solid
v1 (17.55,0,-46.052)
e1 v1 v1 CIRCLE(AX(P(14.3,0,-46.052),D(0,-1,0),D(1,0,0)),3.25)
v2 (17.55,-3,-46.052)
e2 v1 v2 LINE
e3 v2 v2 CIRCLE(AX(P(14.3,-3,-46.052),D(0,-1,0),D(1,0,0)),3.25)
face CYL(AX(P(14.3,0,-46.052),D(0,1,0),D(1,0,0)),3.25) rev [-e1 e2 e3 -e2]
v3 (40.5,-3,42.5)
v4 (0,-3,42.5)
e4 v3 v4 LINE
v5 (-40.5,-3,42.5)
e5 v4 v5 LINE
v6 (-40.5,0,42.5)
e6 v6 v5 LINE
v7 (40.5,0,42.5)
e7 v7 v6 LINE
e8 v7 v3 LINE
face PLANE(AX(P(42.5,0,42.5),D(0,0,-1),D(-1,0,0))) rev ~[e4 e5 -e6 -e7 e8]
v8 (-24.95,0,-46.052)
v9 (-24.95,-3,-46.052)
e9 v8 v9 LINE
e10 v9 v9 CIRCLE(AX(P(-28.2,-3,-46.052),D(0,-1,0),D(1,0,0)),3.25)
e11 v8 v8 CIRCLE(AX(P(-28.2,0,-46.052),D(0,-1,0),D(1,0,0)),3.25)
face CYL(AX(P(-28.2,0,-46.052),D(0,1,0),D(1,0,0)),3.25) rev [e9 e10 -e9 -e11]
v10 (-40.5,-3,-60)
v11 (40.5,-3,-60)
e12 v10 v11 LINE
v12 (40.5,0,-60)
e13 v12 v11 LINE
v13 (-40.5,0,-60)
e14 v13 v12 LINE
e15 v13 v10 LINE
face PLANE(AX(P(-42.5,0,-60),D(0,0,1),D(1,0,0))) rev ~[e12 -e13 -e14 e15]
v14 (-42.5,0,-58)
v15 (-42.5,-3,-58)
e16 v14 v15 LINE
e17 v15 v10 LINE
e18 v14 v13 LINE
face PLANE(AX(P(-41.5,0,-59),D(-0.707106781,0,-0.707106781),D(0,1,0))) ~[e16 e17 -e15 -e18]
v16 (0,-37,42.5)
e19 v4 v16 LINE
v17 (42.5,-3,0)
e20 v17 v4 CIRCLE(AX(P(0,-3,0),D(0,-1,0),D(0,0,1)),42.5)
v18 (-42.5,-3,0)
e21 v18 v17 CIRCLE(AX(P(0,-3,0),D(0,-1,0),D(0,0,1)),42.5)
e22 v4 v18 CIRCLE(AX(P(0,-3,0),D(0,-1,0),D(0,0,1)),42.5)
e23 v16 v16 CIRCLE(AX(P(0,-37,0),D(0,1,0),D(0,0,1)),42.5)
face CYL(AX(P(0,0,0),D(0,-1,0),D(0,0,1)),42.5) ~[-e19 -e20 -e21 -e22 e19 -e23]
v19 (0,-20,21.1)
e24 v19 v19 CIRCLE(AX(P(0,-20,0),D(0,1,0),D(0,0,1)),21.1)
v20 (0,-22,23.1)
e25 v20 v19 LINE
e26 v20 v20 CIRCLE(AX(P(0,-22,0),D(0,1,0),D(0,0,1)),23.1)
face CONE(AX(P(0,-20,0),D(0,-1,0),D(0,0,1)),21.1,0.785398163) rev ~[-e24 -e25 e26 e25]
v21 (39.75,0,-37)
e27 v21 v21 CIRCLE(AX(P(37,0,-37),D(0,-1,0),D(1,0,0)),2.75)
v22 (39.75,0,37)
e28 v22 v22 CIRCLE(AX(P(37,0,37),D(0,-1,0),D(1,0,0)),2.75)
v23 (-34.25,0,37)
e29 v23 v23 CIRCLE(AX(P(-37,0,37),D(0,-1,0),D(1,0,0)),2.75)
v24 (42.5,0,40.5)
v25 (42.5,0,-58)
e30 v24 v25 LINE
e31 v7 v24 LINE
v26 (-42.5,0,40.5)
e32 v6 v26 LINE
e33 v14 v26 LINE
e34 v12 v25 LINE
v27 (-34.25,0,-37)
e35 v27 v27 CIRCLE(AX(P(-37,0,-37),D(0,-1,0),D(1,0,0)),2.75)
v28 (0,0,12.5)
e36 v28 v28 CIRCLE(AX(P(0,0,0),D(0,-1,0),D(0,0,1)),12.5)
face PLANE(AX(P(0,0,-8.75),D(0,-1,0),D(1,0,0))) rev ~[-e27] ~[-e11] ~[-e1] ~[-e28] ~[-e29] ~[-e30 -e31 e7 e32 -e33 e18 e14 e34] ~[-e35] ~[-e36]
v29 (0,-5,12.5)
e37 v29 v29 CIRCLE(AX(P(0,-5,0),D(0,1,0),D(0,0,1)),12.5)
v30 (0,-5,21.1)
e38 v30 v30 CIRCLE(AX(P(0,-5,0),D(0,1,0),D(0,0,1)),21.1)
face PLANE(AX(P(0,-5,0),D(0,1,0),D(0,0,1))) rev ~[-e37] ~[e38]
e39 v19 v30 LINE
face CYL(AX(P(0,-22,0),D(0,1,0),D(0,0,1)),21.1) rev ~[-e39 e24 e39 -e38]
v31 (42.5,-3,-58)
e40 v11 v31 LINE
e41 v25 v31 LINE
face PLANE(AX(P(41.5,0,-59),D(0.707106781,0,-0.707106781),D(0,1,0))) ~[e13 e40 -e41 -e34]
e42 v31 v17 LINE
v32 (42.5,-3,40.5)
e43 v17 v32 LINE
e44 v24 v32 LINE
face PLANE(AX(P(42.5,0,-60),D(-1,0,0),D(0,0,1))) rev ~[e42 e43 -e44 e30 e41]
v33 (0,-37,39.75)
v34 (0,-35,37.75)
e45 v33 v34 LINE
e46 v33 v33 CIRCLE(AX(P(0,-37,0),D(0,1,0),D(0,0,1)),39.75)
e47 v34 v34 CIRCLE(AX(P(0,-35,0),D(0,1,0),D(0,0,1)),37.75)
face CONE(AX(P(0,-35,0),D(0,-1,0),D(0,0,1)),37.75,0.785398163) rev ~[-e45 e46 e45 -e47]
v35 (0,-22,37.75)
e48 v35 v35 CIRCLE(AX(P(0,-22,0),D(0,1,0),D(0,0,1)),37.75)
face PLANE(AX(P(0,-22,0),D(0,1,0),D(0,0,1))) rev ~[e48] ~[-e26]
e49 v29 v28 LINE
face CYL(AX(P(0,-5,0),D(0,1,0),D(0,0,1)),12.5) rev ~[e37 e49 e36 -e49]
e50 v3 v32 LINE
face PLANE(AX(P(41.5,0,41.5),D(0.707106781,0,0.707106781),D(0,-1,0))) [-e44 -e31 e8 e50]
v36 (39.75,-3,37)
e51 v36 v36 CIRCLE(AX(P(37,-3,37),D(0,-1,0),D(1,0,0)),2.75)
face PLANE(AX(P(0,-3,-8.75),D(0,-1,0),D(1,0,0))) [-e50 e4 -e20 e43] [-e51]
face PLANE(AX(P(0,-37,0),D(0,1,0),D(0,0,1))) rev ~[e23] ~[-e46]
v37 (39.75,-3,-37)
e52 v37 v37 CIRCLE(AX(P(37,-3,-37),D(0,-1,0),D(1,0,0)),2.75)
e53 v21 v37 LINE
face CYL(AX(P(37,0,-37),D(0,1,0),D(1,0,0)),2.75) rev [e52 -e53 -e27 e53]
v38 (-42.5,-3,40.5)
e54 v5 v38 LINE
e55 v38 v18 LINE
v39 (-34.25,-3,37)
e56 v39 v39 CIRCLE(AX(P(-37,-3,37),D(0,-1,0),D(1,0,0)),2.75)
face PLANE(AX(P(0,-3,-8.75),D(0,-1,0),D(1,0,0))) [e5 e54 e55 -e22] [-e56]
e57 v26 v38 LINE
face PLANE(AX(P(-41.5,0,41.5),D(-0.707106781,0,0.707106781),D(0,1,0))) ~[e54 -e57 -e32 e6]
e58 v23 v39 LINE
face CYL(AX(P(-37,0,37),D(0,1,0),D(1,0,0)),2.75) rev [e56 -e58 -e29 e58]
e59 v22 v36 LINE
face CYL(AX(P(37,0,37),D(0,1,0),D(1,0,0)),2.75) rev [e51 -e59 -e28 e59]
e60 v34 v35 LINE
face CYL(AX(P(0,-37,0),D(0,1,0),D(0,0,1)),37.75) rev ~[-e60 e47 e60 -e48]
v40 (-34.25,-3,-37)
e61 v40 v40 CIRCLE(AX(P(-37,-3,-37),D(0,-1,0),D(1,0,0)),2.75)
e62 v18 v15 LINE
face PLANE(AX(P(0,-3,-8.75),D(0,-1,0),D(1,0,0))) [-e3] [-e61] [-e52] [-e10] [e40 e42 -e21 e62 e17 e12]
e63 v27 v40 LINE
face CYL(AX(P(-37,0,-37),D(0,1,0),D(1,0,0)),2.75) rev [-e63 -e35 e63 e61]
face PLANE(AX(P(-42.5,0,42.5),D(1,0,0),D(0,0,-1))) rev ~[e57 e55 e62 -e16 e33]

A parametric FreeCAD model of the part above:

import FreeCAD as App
import Part
import Sketcher
from FreeCAD import Vector
Q = App.Units.Quantity


def edges_at(feature, points):
    """Names of the edges that pass closest to the given points."""
    edges = feature.Shape.Edges
    near = lambda p: min(range(len(edges)), key=lambda i: edges[i].distToShape(Part.Vertex(*p))[0])
    return sorted({f"Edge{near(p) + 1}" for p in points})


def add_polygon(sketch, points):
    """Adds a closed chain of lines whose ends are joined by coincident constraints."""
    first, n = sketch.GeometryCount, len(points)
    for a, b in zip(points, points[1:] + points[:1]):
        sketch.addGeometry(Part.LineSegment(App.Vector(*a, 0), App.Vector(*b, 0)), False)
    for i in range(n):
        sketch.addConstraint(Sketcher.Constraint("Coincident", first + i, 2, first + (i + 1) % n, 1))

doc = App.newDocument("Part")
body = doc.addObject("PartDesign::Body", "Body")

# Sketch on YZ plane
sketch1 = body.newObject("Sketcher::SketchObject", "Sketch")
sketch1.AttachmentSupport = (doc.getObject("YZ_Plane"), [""])
sketch1.MapMode = "FlatFace"
add_polygon(sketch1, [(0, 12.5), (0, 42.5), (-37, 42.5), (-37, 37.8), (-22, 37.8), (-22, 21.1), (-5, 21.1), (-5, 12.5)])  # lines 0-7
sketch1.addConstraint([
    Sketcher.Constraint("Vertical", 0),
    Sketcher.Constraint("Horizontal", 1),
    Sketcher.Constraint("Vertical", 2),
    Sketcher.Constraint("Horizontal", 3),
    Sketcher.Constraint("Vertical", 4),
    Sketcher.Constraint("Horizontal", 5),
    Sketcher.Constraint("Vertical", 6),
    Sketcher.Constraint("Horizontal", 7),
    Sketcher.Constraint("PointOnObject", 0, 2, -2),
    Sketcher.Constraint("DistanceX", 1, 2, 1, 1, Q("37 mm")),
    Sketcher.Constraint("DistanceX", 3, 1, 3, 2, Q("15 mm")),
    Sketcher.Constraint("DistanceX", 5, 1, 5, 2, Q("17 mm")),
    Sketcher.Constraint("DistanceY", 0, 1, 0, 2, Q("30 mm")),
    Sketcher.Constraint("DistanceY", 6, 2, 6, 1, Q("8.6 mm")),
    Sketcher.Constraint("DistanceY", 2, 2, 2, 1, Q("4.75 mm")),
    Sketcher.Constraint("DistanceY", -1, 1, 0, 2, Q("42.5 mm")),
])
revolution = body.newObject("PartDesign::Revolution", "Revolution")
revolution.Profile = sketch1
revolution.ReferenceAxis = (sketch1, ["H_Axis"])
revolution.Angle = 360

# Sketch on XZ plane
sketch2 = body.newObject("Sketcher::SketchObject", "Sketch001")
sketch2.AttachmentSupport = (doc.getObject("XZ_Plane"), [""])
sketch2.MapMode = "FlatFace"
add_polygon(sketch2, [(42.5, 42.5), (-42.5, 42.5), (-42.5, -60), (42.5, -60)])  # lines 0-3
sketch2.addGeometry(Part.Circle(Vector(-28.2, -46.1, 0), Vector(0, 0, 1), 3.2), False)  # 4
sketch2.addGeometry(Part.Circle(Vector(-37, -37, 0), Vector(0, 0, 1), 2.8), False)  # 5
sketch2.addGeometry(Part.Circle(Vector(14.3, -46.1, 0), Vector(0, 0, 1), 3.2), False)  # 6
sketch2.addGeometry(Part.Circle(Vector(37, -37, 0), Vector(0, 0, 1), 2.8), False)  # 7
sketch2.addGeometry(Part.Circle(Vector(-37, 37, 0), Vector(0, 0, 1), 2.8), False)  # 8
sketch2.addGeometry(Part.Circle(Vector(0, 0, 0), Vector(0, 0, 1), 12.5), False)  # 9
sketch2.addGeometry(Part.Circle(Vector(37, 37, 0), Vector(0, 0, 1), 2.8), False)  # 10
sketch2.addConstraint([
    Sketcher.Constraint("Horizontal", 0),
    Sketcher.Constraint("Vertical", 1),
    Sketcher.Constraint("Horizontal", 2),
    Sketcher.Constraint("Vertical", 3),
    Sketcher.Constraint("Coincident", 9, 3, -1, 1),
    Sketcher.Constraint("Equal", 4, 6),
    Sketcher.Constraint("Equal", 5, 7),
    Sketcher.Constraint("Equal", 7, 8),
    Sketcher.Constraint("Equal", 8, 10),
    Sketcher.Constraint("Symmetric", 7, 3, 8, 3, -1, 1),
    Sketcher.Constraint("Symmetric", 5, 3, 10, 3, -1, 1),
    Sketcher.Constraint("Symmetric", 5, 3, 7, 3, -2),
    Sketcher.Constraint("Horizontal", 4, 3, 6, 3),
    Sketcher.Constraint("Diameter", 9, Q("25 mm")),
    Sketcher.Constraint("Diameter", 4, Q("6.5 mm")),
    Sketcher.Constraint("Diameter", 5, Q("5.5 mm")),
    Sketcher.Constraint("DistanceX", 0, 2, 0, 1, Q("85 mm")),
    Sketcher.Constraint("DistanceY", 1, 2, 1, 1, Q("102.5 mm")),
    Sketcher.Constraint("DistanceX", 5, 3, -1, 1, Q("37 mm")),
    Sketcher.Constraint("DistanceY", 5, 3, -1, 1, Q("37 mm")),
    Sketcher.Constraint("DistanceY", 1, 2, -1, 1, Q("60 mm")),
    Sketcher.Constraint("DistanceX", 4, 3, -1, 1, Q("28.2 mm")),
    Sketcher.Constraint("DistanceX", -1, 1, 6, 3, Q("14.3 mm")),
    Sketcher.Constraint("DistanceX", 0, 2, -1, 1, Q("42.5 mm")),
    Sketcher.Constraint("DistanceY", 4, 3, -1, 1, Q("46.052 mm")),
])
pad1 = body.newObject("PartDesign::Pad", "Pad")
pad1.Profile = sketch2
pad1.Length = 3
doc.recompute()

chamfer = body.newObject("PartDesign::Chamfer", "Chamfer")
chamfer.Base = (pad1, edges_at(pad1, [
    (42.5, -1.5, 42.5),
    (-42.5, -1.5, 42.5),
    (42.5, -1.5, -60),
    (-42.5, -1.5, -60),
    (0, -22, -21.1),
    (0, -37, -37.75),
]))
chamfer.Size = 2

doc.recompute()
